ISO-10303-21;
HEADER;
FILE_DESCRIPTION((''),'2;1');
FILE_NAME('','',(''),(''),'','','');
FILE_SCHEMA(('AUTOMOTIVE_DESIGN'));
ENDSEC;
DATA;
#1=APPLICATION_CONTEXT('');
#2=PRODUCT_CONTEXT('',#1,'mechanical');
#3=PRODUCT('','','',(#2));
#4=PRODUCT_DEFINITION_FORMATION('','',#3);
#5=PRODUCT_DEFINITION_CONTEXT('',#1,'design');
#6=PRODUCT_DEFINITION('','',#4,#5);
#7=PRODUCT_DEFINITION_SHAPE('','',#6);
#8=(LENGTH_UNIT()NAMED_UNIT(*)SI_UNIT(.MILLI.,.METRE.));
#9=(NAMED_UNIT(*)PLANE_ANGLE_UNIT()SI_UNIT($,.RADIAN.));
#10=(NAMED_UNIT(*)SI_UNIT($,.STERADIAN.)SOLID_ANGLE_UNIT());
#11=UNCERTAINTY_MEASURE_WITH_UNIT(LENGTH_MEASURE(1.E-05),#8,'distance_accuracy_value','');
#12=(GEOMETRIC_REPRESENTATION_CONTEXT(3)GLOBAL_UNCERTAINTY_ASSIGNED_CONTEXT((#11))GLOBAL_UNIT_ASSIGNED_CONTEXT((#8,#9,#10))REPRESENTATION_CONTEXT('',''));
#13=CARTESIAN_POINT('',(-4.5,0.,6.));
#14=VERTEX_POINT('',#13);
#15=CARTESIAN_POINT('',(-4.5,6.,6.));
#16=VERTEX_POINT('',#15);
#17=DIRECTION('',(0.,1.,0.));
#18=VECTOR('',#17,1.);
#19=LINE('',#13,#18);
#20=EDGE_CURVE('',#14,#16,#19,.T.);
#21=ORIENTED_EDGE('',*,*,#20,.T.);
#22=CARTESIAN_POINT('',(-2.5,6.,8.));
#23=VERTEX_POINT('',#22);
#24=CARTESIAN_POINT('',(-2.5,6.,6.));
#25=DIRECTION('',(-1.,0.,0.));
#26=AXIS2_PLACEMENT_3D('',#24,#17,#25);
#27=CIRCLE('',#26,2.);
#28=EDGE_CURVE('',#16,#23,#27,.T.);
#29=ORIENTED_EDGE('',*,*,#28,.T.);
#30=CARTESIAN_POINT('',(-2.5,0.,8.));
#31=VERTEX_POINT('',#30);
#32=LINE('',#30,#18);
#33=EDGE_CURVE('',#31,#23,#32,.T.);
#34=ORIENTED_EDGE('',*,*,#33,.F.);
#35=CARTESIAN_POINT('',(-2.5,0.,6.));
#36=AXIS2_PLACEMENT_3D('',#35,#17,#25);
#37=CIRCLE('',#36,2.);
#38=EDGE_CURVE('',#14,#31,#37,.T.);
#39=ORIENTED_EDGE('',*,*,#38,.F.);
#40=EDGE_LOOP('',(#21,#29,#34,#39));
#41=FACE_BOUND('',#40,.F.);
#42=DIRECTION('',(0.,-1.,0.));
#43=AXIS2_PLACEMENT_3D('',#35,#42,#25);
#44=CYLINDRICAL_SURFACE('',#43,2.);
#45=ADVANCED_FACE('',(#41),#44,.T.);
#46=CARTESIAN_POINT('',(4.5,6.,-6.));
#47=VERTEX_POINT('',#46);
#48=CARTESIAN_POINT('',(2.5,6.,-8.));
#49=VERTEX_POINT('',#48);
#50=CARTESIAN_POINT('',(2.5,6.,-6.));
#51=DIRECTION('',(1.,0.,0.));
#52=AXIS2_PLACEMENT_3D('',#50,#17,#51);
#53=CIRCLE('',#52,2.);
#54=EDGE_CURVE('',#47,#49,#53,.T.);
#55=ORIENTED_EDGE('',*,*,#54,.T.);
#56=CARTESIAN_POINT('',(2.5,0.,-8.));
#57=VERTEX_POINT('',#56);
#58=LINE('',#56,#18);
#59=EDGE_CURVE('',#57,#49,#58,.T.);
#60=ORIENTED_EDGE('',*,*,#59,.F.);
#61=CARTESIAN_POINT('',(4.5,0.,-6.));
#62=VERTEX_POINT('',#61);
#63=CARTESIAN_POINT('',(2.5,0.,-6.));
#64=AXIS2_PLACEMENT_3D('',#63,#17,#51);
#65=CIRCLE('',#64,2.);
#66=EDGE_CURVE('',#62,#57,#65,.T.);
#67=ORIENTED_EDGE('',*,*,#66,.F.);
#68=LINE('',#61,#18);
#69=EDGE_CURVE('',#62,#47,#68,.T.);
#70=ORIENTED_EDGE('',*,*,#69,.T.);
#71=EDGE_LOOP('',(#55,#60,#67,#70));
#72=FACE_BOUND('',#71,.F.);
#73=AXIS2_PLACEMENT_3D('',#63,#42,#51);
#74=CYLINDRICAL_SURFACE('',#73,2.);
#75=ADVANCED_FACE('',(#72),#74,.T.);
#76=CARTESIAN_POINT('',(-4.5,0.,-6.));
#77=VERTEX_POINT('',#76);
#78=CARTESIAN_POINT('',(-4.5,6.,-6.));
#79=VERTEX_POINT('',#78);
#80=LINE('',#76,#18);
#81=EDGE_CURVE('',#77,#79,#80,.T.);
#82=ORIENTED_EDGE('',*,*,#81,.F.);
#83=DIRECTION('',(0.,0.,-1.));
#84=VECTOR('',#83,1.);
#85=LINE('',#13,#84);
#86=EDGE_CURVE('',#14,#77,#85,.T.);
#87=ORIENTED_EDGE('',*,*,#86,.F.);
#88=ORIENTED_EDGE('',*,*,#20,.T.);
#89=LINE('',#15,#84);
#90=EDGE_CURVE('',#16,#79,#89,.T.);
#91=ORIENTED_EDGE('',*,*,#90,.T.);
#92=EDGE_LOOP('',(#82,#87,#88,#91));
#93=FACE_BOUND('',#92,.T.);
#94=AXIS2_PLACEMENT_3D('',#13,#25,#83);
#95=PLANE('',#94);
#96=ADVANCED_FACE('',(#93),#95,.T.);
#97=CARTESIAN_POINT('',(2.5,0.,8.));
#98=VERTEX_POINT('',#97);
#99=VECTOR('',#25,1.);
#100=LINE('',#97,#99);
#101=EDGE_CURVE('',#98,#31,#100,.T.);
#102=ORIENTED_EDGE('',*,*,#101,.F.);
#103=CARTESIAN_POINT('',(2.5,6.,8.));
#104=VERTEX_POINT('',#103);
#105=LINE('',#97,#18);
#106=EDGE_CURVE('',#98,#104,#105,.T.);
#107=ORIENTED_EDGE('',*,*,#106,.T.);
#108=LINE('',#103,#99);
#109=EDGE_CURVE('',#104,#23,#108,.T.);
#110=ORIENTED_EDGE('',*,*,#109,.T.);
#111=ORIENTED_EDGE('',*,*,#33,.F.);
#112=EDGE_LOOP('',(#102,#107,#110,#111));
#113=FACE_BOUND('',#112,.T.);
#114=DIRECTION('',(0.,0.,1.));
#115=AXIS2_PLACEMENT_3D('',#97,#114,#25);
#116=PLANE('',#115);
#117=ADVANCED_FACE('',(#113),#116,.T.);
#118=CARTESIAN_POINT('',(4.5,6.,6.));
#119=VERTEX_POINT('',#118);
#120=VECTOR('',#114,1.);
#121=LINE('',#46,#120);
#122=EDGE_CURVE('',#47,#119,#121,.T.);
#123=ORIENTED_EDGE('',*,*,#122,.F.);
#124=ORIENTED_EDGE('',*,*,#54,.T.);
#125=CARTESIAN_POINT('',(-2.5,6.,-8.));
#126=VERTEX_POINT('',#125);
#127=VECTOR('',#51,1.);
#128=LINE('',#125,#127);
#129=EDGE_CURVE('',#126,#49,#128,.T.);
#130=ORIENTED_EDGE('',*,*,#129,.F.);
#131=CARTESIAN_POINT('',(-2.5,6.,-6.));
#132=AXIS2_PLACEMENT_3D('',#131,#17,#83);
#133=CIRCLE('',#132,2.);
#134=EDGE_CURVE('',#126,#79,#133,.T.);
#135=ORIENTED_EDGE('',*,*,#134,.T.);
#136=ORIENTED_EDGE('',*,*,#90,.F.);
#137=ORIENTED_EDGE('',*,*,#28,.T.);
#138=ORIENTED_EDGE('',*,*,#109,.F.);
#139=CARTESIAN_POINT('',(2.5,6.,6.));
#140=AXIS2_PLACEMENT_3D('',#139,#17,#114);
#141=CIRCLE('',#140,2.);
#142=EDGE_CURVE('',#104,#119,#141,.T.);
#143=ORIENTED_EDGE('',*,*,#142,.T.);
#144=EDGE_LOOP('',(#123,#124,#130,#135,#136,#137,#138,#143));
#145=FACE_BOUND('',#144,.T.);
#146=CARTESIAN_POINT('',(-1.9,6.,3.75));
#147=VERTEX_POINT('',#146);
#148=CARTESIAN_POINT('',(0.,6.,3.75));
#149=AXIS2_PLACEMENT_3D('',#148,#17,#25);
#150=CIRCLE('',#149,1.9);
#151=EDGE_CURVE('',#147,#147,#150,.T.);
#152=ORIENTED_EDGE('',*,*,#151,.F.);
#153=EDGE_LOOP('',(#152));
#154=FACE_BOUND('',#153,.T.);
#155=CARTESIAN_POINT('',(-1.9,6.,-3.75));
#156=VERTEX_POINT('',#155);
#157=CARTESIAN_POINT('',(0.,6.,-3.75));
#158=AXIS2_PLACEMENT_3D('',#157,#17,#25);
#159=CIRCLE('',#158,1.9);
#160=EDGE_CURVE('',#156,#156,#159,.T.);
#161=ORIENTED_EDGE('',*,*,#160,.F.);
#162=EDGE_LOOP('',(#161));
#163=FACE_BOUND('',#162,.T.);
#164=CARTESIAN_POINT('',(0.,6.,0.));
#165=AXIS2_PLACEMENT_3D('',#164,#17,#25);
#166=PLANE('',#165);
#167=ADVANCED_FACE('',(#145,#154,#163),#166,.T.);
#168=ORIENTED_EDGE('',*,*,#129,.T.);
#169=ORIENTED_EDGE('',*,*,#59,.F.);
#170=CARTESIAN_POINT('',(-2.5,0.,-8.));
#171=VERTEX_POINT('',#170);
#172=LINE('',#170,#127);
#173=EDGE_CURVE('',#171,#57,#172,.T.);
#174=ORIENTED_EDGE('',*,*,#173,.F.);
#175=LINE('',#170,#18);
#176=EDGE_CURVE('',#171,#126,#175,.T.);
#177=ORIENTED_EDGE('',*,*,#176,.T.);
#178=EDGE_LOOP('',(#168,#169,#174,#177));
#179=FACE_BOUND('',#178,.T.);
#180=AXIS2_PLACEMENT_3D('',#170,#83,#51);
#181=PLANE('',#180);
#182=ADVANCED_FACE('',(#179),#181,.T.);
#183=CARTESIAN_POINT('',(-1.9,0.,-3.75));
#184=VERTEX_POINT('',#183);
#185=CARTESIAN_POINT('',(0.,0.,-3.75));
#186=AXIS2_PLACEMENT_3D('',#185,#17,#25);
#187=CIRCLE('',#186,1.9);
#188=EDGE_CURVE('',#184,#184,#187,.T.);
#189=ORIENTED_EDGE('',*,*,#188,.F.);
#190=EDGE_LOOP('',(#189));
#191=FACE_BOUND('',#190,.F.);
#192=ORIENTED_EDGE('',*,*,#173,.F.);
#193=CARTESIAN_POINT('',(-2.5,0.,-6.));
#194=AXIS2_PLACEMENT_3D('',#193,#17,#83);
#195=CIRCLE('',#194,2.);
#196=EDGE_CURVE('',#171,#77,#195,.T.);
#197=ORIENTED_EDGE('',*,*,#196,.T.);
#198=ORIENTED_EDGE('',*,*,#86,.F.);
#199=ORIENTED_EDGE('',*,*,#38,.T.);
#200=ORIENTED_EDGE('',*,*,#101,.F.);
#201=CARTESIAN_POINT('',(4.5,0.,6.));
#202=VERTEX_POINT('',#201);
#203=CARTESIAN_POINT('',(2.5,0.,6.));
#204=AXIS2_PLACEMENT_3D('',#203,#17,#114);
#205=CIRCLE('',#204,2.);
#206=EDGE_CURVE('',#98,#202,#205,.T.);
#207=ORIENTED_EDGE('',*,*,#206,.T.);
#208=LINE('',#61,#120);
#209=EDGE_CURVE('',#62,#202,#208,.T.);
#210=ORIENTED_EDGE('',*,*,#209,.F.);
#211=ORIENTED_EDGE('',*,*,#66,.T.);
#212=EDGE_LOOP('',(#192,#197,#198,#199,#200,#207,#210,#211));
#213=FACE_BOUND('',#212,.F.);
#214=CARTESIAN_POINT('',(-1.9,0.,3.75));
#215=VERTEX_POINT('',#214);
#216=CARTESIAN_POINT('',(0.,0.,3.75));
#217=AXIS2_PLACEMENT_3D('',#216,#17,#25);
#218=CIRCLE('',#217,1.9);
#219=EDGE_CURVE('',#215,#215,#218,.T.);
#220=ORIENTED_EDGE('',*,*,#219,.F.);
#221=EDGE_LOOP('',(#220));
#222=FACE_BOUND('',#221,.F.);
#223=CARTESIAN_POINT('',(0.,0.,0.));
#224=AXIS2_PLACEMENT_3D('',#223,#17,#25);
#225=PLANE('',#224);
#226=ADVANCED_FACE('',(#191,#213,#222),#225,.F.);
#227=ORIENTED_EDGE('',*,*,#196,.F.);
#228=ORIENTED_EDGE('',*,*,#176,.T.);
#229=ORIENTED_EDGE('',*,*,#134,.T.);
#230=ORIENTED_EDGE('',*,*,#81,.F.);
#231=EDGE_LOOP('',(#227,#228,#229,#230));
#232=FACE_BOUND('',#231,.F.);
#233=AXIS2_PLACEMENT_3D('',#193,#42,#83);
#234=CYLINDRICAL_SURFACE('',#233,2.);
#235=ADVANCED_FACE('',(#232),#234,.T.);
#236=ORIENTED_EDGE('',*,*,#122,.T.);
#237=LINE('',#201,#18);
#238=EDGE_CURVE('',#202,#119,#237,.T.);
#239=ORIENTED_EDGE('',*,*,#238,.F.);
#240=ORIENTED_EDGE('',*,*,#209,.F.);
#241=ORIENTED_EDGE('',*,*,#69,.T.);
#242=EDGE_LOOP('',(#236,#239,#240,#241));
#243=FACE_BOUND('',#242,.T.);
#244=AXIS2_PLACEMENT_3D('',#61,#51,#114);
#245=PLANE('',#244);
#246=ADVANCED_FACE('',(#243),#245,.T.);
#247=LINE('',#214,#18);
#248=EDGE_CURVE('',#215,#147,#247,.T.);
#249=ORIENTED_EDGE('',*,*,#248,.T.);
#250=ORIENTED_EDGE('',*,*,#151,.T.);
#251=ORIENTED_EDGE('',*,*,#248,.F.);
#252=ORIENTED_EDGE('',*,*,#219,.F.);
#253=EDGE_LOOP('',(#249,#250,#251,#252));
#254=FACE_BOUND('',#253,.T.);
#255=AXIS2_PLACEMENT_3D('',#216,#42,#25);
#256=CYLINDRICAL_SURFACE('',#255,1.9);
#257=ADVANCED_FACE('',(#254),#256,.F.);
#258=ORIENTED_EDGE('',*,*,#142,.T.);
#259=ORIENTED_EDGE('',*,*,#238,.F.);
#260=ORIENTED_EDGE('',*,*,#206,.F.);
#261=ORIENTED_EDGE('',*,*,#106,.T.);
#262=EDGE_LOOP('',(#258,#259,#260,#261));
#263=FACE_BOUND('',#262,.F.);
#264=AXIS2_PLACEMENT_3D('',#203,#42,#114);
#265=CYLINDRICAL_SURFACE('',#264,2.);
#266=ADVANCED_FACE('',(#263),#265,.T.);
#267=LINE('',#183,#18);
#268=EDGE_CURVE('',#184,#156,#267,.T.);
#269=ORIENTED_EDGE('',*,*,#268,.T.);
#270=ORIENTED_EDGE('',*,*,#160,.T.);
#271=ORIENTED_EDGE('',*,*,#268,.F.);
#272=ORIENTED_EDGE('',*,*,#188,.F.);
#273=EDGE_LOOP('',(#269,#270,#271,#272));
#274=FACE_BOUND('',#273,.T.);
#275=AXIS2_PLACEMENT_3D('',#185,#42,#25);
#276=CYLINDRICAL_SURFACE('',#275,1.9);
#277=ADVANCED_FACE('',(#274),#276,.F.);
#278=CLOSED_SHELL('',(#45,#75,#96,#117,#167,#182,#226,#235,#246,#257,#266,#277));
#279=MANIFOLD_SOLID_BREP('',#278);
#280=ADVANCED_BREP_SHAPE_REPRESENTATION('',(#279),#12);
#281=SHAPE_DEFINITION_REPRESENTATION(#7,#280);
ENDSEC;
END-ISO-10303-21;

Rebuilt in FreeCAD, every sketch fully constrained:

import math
import FreeCAD as App
import Part
import Sketcher
from FreeCAD import Vector
Q = App.Units.Quantity

doc = App.newDocument("Part")
body = doc.addObject("PartDesign::Body", "Body")

sketch1 = doc.addObject("Sketcher::SketchObject", "Sketch")
body.addObject(sketch1)
sketch1.AttachmentSupport = (doc.XZ_Plane, [""])
sketch1.MapMode = "FlatFace"
sketch1.addGeometry([
    Part.LineSegment(Vector(-2.5, 8, 0), Vector(2.5, 8, 0)),
    Part.ArcOfCircle(Part.Circle(Vector(2.5, 6, 0), Vector(0, 0, 1), 2), math.radians(0), math.radians(90)),
    Part.LineSegment(Vector(4.5, 6, 0), Vector(4.5, -6, 0)),
    Part.ArcOfCircle(Part.Circle(Vector(2.5, -6, 0), Vector(0, 0, 1), 2), math.radians(-90), math.radians(0)),
    Part.LineSegment(Vector(2.5, -8, 0), Vector(-2.5, -8, 0)),
    Part.ArcOfCircle(Part.Circle(Vector(-2.5, -6, 0), Vector(0, 0, 1), 2), math.radians(180), math.radians(270)),
    Part.LineSegment(Vector(-4.5, -6, 0), Vector(-4.5, 6, 0)),
    Part.ArcOfCircle(Part.Circle(Vector(-2.5, 6, 0), Vector(0, 0, 1), 2), math.radians(90), math.radians(180)),
    Part.Circle(Vector(0, -3.8, 0), Vector(0, 0, 1), 1.9),
    Part.Circle(Vector(0, 3.8, 0), Vector(0, 0, 1), 1.9),
], False)
sketch1.addConstraint([
    Sketcher.Constraint("Tangent", 0, 2, 1, 2),
    Sketcher.Constraint("Tangent", 1, 1, 2, 1),
    Sketcher.Constraint("Tangent", 2, 2, 3, 2),
    Sketcher.Constraint("Tangent", 3, 1, 4, 1),
    Sketcher.Constraint("Tangent", 4, 2, 5, 2),
    Sketcher.Constraint("Tangent", 5, 1, 6, 1),
    Sketcher.Constraint("Tangent", 6, 2, 7, 2),
    Sketcher.Constraint("Tangent", 7, 1, 0, 1),
    Sketcher.Constraint("Horizontal", 0),
    Sketcher.Constraint("Vertical", 2),
    Sketcher.Constraint("Horizontal", 4),
    Sketcher.Constraint("Vertical", 6),
    Sketcher.Constraint("Equal", 1, 3),
    Sketcher.Constraint("Equal", 3, 5),
    Sketcher.Constraint("Equal", 5, 7),
    Sketcher.Constraint("Equal", 8, 9),
    Sketcher.Constraint("Symmetric", 1, 3, 5, 3, -1, 1),
    Sketcher.Constraint("Symmetric", 8, 3, 9, 3, -1, 1),
    Sketcher.Constraint("PointOnObject", 8, 3, -2),
    Sketcher.Constraint("Radius", 1, Q("2 mm")),
    Sketcher.Constraint("Diameter", 8, Q("3.8 mm")),
    Sketcher.Constraint("DistanceX", 6, 2, 1, 1, Q("9 mm")),
    Sketcher.Constraint("DistanceY", 8, 3, 9, 3, Q("7.5 mm")),
    Sketcher.Constraint("DistanceY", 2, 2, 2, 1, Q("12 mm")),
])
pad1 = doc.addObject("PartDesign::Pad", "Pad")
body.addObject(pad1)
pad1.Profile = sketch1
pad1.Length = 6
pad1.Reversed = True

doc.recompute()
